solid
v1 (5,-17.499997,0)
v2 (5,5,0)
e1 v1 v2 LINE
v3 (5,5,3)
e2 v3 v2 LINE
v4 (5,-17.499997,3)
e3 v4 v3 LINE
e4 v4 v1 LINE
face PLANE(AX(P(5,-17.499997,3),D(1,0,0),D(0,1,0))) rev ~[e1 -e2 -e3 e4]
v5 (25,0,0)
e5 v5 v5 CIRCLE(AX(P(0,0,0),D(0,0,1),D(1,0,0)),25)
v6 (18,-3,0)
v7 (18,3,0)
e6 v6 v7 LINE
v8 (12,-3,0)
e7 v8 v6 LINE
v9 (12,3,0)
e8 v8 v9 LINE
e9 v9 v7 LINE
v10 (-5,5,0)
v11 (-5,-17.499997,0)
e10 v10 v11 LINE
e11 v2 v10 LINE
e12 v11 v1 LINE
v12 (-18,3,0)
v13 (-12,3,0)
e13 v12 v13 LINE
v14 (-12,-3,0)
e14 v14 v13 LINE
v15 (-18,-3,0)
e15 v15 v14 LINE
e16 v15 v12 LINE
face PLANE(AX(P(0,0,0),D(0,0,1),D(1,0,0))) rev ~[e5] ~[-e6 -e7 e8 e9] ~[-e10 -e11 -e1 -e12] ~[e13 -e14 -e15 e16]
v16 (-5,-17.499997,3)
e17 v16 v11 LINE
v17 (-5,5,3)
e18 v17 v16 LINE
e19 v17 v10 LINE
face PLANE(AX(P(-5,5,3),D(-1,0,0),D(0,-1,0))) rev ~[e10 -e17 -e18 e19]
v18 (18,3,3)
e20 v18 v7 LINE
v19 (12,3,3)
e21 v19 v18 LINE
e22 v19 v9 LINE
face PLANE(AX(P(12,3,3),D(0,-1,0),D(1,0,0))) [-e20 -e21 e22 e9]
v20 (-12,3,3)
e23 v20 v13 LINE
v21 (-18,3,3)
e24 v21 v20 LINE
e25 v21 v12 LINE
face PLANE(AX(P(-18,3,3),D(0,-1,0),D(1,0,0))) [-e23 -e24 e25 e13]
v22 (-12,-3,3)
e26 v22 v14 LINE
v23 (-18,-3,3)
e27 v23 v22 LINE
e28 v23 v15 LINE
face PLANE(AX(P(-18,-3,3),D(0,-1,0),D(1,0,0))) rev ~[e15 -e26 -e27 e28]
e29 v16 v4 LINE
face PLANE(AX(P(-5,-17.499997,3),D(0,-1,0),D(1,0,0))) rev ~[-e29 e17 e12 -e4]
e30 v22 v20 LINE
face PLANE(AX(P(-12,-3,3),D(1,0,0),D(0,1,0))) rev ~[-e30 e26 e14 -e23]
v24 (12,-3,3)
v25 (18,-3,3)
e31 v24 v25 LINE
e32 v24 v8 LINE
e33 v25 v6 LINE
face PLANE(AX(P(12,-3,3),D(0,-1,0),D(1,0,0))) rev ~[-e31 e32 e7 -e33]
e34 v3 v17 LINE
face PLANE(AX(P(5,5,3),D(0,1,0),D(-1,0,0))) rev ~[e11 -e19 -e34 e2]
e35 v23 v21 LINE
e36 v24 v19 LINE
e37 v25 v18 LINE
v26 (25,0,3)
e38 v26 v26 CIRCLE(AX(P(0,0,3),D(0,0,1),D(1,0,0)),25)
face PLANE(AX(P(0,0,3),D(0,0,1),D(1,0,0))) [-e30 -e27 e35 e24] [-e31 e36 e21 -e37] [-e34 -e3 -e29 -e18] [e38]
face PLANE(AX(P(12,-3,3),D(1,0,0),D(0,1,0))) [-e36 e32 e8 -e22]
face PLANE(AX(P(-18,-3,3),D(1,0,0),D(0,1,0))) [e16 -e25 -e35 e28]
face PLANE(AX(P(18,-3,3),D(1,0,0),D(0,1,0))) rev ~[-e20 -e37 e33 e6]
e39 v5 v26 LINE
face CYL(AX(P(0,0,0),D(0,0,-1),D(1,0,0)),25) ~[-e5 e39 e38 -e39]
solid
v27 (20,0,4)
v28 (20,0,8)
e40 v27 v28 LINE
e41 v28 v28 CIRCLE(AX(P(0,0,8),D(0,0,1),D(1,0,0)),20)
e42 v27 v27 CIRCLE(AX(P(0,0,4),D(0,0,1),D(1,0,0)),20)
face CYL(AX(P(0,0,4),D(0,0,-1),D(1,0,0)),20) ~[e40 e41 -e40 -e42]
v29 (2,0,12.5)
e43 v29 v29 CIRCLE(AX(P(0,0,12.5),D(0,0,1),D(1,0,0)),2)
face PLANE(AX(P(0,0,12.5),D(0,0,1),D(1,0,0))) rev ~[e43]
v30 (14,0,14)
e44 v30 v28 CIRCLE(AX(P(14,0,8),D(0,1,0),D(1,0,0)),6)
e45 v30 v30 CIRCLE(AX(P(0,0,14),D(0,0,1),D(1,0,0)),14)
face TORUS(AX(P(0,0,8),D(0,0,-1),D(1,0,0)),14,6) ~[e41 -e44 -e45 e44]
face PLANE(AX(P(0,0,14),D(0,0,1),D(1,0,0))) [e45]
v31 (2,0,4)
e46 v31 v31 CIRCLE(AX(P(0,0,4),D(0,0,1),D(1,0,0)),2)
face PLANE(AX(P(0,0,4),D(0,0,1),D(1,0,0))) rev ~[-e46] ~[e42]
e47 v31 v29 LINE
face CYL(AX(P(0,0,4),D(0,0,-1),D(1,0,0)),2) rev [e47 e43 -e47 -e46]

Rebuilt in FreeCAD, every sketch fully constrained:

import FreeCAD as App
import Part
import Sketcher


def edges_at(feature, points):
    """Names of the edges that pass closest to the given points."""
    edges = feature.Shape.Edges
    near = lambda p: min(range(len(edges)), key=lambda i: edges[i].distToShape(Part.Vertex(*p))[0])
    return sorted({f"Edge{near(p) + 1}" for p in points})

doc = App.newDocument("Part")
body = doc.addObject("PartDesign::Body", "Body")

sketch1 = body.newObject("Sketcher::SketchObject", "Sketch")
sketch1.AttachmentSupport = (doc.getObject("XY_Plane"), [""])
sketch1.MapMode = "FlatFace"
sketch1.addGeometry(Part.Circle(App.Vector(0, 0, 0), App.Vector(0, 0, 1), 25), False)
sketch1.addConstraint(Sketcher.Constraint("Coincident", 0, 3, -1, 1))
sketch1.addConstraint(Sketcher.Constraint("Diameter", 0, 50.0))
pad1 = body.newObject("PartDesign::Pad", "Pad")
pad1.Profile = sketch1
pad1.Length = 3

sketch2 = body.newObject("Sketcher::SketchObject", "Sketch001")
sketch2.AttachmentSupport = (doc.getObject("XY_Plane"), [""])
sketch2.MapMode = "FlatFace"
sketch2.AttachmentOffset = App.Placement(App.Vector(0, 0, 3), App.Rotation())
sketch2.addGeometry(Part.LineSegment(App.Vector(-5, -17, 0), App.Vector(5, -17, 0)), False)
sketch2.addGeometry(Part.LineSegment(App.Vector(5, -17, 0), App.Vector(5, 5, 0)), False)
sketch2.addGeometry(Part.LineSegment(App.Vector(5, 5, 0), App.Vector(-5, 5, 0)), False)
sketch2.addGeometry(Part.LineSegment(App.Vector(-5, 5, 0), App.Vector(-5, -17, 0)), False)
sketch2.addConstraint(Sketcher.Constraint("Coincident", 0, 2, 1, 1))
sketch2.addConstraint(Sketcher.Constraint("Coincident", 1, 2, 2, 1))
sketch2.addConstraint(Sketcher.Constraint("Coincident", 2, 2, 3, 1))
sketch2.addConstraint(Sketcher.Constraint("Coincident", 3, 2, 0, 1))
sketch2.addConstraint(Sketcher.Constraint("Horizontal", 0))
sketch2.addConstraint(Sketcher.Constraint("Vertical", 1))
sketch2.addConstraint(Sketcher.Constraint("Horizontal", 2))
sketch2.addConstraint(Sketcher.Constraint("Vertical", 3))
sketch2.addConstraint(Sketcher.Constraint("DistanceX", 0, 1, 0, 2, 10.0))
sketch2.addConstraint(Sketcher.Constraint("DistanceX", -1, 1, 0, 2, 5.0))
sketch2.addConstraint(Sketcher.Constraint("DistanceY", -1, 1, 1, 2, 5.0))
sketch2.addConstraint(Sketcher.Constraint("DistanceY", 1, 1, 1, 2, 22.499997))
pocket1 = body.newObject("PartDesign::Pocket", "Pocket")
pocket1.Profile = sketch2
pocket1.Length = 25

sketch3 = body.newObject("Sketcher::SketchObject", "Sketch002")
sketch3.AttachmentSupport = (doc.getObject("XY_Plane"), [""])
sketch3.MapMode = "FlatFace"
sketch3.AttachmentOffset = App.Placement(App.Vector(0, 0, 3), App.Rotation())
sketch3.addGeometry(Part.LineSegment(App.Vector(-18, 3, 0), App.Vector(-18, -3, 0)), False)
sketch3.addGeometry(Part.LineSegment(App.Vector(-18, -3, 0), App.Vector(-12, -3, 0)), False)
sketch3.addGeometry(Part.LineSegment(App.Vector(-12, -3, 0), App.Vector(-12, 3, 0)), False)
sketch3.addGeometry(Part.LineSegment(App.Vector(-12, 3, 0), App.Vector(-18, 3, 0)), False)
sketch3.addGeometry(Part.LineSegment(App.Vector(12, 3, 0), App.Vector(12, -3, 0)), False)
sketch3.addGeometry(Part.LineSegment(App.Vector(12, -3, 0), App.Vector(18, -3, 0)), False)
sketch3.addGeometry(Part.LineSegment(App.Vector(18, -3, 0), App.Vector(18, 3, 0)), False)
sketch3.addGeometry(Part.LineSegment(App.Vector(18, 3, 0), App.Vector(12, 3, 0)), False)
sketch3.addConstraint(Sketcher.Constraint("Coincident", 0, 2, 1, 1))
sketch3.addConstraint(Sketcher.Constraint("Coincident", 1, 2, 2, 1))
sketch3.addConstraint(Sketcher.Constraint("Coincident", 2, 2, 3, 1))
sketch3.addConstraint(Sketcher.Constraint("Coincident", 3, 2, 0, 1))
sketch3.addConstraint(Sketcher.Constraint("Coincident", 4, 2, 5, 1))
sketch3.addConstraint(Sketcher.Constraint("Coincident", 5, 2, 6, 1))
sketch3.addConstraint(Sketcher.Constraint("Coincident", 6, 2, 7, 1))
sketch3.addConstraint(Sketcher.Constraint("Coincident", 7, 2, 4, 1))
sketch3.addConstraint(Sketcher.Constraint("Vertical", 0))
sketch3.addConstraint(Sketcher.Constraint("Horizontal", 1))
sketch3.addConstraint(Sketcher.Constraint("Vertical", 2))
sketch3.addConstraint(Sketcher.Constraint("Horizontal", 3))
sketch3.addConstraint(Sketcher.Constraint("Vertical", 4))
sketch3.addConstraint(Sketcher.Constraint("Horizontal", 5))
sketch3.addConstraint(Sketcher.Constraint("Vertical", 6))
sketch3.addConstraint(Sketcher.Constraint("Horizontal", 7))
sketch3.addConstraint(Sketcher.Constraint("Symmetric", 2, 2, 4, 2, -1, 1))
sketch3.addConstraint(Sketcher.Constraint("Symmetric", 0, 2, 6, 2, -1, 1))
sketch3.addConstraint(Sketcher.Constraint("Horizontal", 1, 2, 4, 2))
sketch3.addConstraint(Sketcher.Constraint("Equal", 7, 0))
sketch3.addConstraint(Sketcher.Constraint("DistanceX", 1, 1, 1, 2, 6.0))
sketch3.addConstraint(Sketcher.Constraint("DistanceX", 0, 2, -1, 1, 18.0))
pocket2 = body.newObject("PartDesign::Pocket", "Pocket001")
pocket2.Profile = sketch3
pocket2.Length = 25
body2 = doc.addObject("PartDesign::Body", "Body001")

sketch4 = body2.newObject("Sketcher::SketchObject", "Sketch003")
sketch4.AttachmentSupport = (doc.getObject("XY_Plane001"), [""])
sketch4.MapMode = "FlatFace"
sketch4.AttachmentOffset = App.Placement(App.Vector(0, 0, 4), App.Rotation())
sketch4.addGeometry(Part.Circle(App.Vector(0, 0, 0), App.Vector(0, 0, 1), 20), False)
sketch4.addGeometry(Part.Circle(App.Vector(0, 0, 0), App.Vector(0, 0, 1), 2), False)
sketch4.addConstraint(Sketcher.Constraint("Coincident", 0, 3, -1, 1))
sketch4.addConstraint(Sketcher.Constraint("Coincident", 1, 3, -1, 1))
sketch4.addConstraint(Sketcher.Constraint("Diameter", 0, 40.0))
sketch4.addConstraint(Sketcher.Constraint("Diameter", 1, 4.0))
pad2 = body2.newObject("PartDesign::Pad", "Pad001")
pad2.Profile = sketch4
pad2.Length = 10

sketch5 = body2.newObject("Sketcher::SketchObject", "Sketch004")
sketch5.AttachmentSupport = (doc.getObject("XY_Plane001"), [""])
sketch5.MapMode = "FlatFace"
sketch5.AttachmentOffset = App.Placement(App.Vector(0, 0, 14), App.Rotation())
sketch5.addGeometry(Part.Circle(App.Vector(0, 0, 0), App.Vector(0, 0, 1), 2), False)
sketch5.addConstraint(Sketcher.Constraint("Coincident", 0, 3, -1, 1))
sketch5.addConstraint(Sketcher.Constraint("Diameter", 0, 4.0))
pad3 = body2.newObject("PartDesign::Pad", "Pad002")
pad3.Profile = sketch5
pad3.Length = 1.5
pad3.Reversed = True
doc.recompute()

fillet = body2.newObject("PartDesign::Fillet", "Fillet")
fillet.Base = (pad3, edges_at(pad3, [(-20, 0, 14)]))
fillet.Radius = 6

doc.recompute()
